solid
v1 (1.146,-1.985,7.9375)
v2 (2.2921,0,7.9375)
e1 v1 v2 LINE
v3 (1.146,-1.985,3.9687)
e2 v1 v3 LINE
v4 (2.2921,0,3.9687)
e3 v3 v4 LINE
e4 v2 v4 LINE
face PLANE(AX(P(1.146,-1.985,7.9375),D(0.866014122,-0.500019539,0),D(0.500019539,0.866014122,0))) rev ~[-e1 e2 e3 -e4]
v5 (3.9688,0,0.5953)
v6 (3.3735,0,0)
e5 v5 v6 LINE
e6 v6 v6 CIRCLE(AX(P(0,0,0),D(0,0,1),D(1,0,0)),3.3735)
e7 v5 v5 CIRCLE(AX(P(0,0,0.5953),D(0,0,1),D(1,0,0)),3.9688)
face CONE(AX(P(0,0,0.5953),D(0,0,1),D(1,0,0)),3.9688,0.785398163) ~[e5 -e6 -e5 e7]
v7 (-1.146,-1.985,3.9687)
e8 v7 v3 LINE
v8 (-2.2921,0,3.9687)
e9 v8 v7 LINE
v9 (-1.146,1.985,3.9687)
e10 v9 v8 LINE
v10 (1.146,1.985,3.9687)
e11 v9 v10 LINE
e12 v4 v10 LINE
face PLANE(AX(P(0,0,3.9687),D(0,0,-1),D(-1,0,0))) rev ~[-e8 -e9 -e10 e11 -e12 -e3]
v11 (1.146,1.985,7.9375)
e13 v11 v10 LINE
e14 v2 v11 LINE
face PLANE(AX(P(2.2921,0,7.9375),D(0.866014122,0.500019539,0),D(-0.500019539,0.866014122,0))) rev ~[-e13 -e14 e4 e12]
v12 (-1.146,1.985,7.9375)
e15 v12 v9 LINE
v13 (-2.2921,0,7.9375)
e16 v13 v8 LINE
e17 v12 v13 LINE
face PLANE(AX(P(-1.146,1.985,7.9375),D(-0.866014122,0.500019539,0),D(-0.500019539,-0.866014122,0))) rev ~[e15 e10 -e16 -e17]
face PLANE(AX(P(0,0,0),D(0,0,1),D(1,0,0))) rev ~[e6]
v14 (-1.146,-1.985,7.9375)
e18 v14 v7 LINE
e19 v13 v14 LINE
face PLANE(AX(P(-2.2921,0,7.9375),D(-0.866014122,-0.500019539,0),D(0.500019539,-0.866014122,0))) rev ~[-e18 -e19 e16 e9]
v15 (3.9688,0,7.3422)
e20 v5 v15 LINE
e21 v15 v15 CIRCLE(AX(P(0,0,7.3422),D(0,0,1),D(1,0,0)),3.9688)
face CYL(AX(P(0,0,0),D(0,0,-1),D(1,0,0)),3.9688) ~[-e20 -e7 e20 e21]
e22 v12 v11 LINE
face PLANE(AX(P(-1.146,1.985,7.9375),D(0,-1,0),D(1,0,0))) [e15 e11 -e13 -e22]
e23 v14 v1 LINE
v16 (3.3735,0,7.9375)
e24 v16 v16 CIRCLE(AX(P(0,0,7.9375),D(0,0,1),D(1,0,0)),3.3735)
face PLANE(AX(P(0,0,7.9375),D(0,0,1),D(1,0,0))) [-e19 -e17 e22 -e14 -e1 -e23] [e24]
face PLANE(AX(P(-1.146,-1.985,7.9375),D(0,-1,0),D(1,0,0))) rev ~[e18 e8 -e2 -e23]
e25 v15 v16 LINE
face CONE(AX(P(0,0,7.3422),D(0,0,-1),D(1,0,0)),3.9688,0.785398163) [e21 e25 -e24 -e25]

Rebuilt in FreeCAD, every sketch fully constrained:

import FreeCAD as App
import Part
import Sketcher
from FreeCAD import Vector
Q = App.Units.Quantity


def edges_at(feature, points):
    """Names of the edges that pass closest to the given points."""
    edges = feature.Shape.Edges
    near = lambda p: min(range(len(edges)), key=lambda i: edges[i].distToShape(Part.Vertex(*p))[0])
    return sorted({f"Edge{near(p) + 1}" for p in points})


def add_polygon(sketch, points):
    """Adds a closed chain of lines whose ends are joined by coincident constraints."""
    first, n = sketch.GeometryCount, len(points)
    for a, b in zip(points, points[1:] + points[:1]):
        sketch.addGeometry(Part.LineSegment(App.Vector(*a, 0), App.Vector(*b, 0)), False)
    for i in range(n):
        sketch.addConstraint(Sketcher.Constraint("Coincident", first + i, 2, first + (i + 1) % n, 1))

doc = App.newDocument("Part")
body = doc.addObject("PartDesign::Body", "Body")

# Sketch on XY plane
sketch1 = body.newObject("Sketcher::SketchObject", "Sketch")
sketch1.AttachmentSupport = (doc.getObject("XY_Plane"), [""])
sketch1.MapMode = "FlatFace"
sketch1.addGeometry(Part.Circle(Vector(0, 0, 0), Vector(0, 0, 1), 3.9688), False)
sketch1.addConstraint([
    Sketcher.Constraint("Coincident", 0, 3, -1, 1),
    Sketcher.Constraint("Diameter", 0, Q("0.3125 in")),
])
pad1 = body.newObject("PartDesign::Pad", "Pad")
pad1.Profile = sketch1
pad1.Length = Q("0.3125 in")
doc.recompute()

chamfer = body.newObject("PartDesign::Chamfer", "Chamfer")
chamfer.Base = (pad1, edges_at(pad1, [(-3.969, 0, 0), (-3.969, 0, 7.938)]))
chamfer.Size = 0.5953

# Sketch on XY plane
sketch2 = body.newObject("Sketcher::SketchObject", "Sketch001")
sketch2.AttachmentSupport = (doc.getObject("XY_Plane"), [""])
sketch2.MapMode = "FlatFace"
sketch2.AttachmentOffset = App.Placement(Vector(0, 0, 0.3125 * 25.4), App.Rotation())
add_polygon(sketch2, [(1.146, 1.985), (-1.146, 1.985), (-2.2921, 0), (-1.146, -1.985), (1.146, -1.985), (2.2921, 0)])  # lines 0-5
sketch2.addConstraint([
    Sketcher.Constraint("Horizontal", 0),
    Sketcher.Constraint("Horizontal", 3),
    Sketcher.Constraint("Symmetric", 0, 2, 3, 2, -1, 1),
    Sketcher.Constraint("Symmetric", 1, 2, 4, 2, -1, 1),
    Sketcher.Constraint("PointOnObject", 1, 2, -1),
    Sketcher.Constraint("Parallel", 2, 5),
    Sketcher.Constraint("Vertical", 0, 2, 2, 2),
    Sketcher.Constraint("DistanceX", 0, 2, 0, 1, Q("2.292 mm")),
    Sketcher.Constraint("DistanceY", 2, 2, 0, 2, Q("0.1563 in")),
    Sketcher.Constraint("Distance", 1, Q("2.292 mm")),
])
pocket1 = body.newObject("PartDesign::Pocket", "Pocket")
pocket1.Profile = sketch2
pocket1.Length = Q("0.156252 in")

doc.recompute()
